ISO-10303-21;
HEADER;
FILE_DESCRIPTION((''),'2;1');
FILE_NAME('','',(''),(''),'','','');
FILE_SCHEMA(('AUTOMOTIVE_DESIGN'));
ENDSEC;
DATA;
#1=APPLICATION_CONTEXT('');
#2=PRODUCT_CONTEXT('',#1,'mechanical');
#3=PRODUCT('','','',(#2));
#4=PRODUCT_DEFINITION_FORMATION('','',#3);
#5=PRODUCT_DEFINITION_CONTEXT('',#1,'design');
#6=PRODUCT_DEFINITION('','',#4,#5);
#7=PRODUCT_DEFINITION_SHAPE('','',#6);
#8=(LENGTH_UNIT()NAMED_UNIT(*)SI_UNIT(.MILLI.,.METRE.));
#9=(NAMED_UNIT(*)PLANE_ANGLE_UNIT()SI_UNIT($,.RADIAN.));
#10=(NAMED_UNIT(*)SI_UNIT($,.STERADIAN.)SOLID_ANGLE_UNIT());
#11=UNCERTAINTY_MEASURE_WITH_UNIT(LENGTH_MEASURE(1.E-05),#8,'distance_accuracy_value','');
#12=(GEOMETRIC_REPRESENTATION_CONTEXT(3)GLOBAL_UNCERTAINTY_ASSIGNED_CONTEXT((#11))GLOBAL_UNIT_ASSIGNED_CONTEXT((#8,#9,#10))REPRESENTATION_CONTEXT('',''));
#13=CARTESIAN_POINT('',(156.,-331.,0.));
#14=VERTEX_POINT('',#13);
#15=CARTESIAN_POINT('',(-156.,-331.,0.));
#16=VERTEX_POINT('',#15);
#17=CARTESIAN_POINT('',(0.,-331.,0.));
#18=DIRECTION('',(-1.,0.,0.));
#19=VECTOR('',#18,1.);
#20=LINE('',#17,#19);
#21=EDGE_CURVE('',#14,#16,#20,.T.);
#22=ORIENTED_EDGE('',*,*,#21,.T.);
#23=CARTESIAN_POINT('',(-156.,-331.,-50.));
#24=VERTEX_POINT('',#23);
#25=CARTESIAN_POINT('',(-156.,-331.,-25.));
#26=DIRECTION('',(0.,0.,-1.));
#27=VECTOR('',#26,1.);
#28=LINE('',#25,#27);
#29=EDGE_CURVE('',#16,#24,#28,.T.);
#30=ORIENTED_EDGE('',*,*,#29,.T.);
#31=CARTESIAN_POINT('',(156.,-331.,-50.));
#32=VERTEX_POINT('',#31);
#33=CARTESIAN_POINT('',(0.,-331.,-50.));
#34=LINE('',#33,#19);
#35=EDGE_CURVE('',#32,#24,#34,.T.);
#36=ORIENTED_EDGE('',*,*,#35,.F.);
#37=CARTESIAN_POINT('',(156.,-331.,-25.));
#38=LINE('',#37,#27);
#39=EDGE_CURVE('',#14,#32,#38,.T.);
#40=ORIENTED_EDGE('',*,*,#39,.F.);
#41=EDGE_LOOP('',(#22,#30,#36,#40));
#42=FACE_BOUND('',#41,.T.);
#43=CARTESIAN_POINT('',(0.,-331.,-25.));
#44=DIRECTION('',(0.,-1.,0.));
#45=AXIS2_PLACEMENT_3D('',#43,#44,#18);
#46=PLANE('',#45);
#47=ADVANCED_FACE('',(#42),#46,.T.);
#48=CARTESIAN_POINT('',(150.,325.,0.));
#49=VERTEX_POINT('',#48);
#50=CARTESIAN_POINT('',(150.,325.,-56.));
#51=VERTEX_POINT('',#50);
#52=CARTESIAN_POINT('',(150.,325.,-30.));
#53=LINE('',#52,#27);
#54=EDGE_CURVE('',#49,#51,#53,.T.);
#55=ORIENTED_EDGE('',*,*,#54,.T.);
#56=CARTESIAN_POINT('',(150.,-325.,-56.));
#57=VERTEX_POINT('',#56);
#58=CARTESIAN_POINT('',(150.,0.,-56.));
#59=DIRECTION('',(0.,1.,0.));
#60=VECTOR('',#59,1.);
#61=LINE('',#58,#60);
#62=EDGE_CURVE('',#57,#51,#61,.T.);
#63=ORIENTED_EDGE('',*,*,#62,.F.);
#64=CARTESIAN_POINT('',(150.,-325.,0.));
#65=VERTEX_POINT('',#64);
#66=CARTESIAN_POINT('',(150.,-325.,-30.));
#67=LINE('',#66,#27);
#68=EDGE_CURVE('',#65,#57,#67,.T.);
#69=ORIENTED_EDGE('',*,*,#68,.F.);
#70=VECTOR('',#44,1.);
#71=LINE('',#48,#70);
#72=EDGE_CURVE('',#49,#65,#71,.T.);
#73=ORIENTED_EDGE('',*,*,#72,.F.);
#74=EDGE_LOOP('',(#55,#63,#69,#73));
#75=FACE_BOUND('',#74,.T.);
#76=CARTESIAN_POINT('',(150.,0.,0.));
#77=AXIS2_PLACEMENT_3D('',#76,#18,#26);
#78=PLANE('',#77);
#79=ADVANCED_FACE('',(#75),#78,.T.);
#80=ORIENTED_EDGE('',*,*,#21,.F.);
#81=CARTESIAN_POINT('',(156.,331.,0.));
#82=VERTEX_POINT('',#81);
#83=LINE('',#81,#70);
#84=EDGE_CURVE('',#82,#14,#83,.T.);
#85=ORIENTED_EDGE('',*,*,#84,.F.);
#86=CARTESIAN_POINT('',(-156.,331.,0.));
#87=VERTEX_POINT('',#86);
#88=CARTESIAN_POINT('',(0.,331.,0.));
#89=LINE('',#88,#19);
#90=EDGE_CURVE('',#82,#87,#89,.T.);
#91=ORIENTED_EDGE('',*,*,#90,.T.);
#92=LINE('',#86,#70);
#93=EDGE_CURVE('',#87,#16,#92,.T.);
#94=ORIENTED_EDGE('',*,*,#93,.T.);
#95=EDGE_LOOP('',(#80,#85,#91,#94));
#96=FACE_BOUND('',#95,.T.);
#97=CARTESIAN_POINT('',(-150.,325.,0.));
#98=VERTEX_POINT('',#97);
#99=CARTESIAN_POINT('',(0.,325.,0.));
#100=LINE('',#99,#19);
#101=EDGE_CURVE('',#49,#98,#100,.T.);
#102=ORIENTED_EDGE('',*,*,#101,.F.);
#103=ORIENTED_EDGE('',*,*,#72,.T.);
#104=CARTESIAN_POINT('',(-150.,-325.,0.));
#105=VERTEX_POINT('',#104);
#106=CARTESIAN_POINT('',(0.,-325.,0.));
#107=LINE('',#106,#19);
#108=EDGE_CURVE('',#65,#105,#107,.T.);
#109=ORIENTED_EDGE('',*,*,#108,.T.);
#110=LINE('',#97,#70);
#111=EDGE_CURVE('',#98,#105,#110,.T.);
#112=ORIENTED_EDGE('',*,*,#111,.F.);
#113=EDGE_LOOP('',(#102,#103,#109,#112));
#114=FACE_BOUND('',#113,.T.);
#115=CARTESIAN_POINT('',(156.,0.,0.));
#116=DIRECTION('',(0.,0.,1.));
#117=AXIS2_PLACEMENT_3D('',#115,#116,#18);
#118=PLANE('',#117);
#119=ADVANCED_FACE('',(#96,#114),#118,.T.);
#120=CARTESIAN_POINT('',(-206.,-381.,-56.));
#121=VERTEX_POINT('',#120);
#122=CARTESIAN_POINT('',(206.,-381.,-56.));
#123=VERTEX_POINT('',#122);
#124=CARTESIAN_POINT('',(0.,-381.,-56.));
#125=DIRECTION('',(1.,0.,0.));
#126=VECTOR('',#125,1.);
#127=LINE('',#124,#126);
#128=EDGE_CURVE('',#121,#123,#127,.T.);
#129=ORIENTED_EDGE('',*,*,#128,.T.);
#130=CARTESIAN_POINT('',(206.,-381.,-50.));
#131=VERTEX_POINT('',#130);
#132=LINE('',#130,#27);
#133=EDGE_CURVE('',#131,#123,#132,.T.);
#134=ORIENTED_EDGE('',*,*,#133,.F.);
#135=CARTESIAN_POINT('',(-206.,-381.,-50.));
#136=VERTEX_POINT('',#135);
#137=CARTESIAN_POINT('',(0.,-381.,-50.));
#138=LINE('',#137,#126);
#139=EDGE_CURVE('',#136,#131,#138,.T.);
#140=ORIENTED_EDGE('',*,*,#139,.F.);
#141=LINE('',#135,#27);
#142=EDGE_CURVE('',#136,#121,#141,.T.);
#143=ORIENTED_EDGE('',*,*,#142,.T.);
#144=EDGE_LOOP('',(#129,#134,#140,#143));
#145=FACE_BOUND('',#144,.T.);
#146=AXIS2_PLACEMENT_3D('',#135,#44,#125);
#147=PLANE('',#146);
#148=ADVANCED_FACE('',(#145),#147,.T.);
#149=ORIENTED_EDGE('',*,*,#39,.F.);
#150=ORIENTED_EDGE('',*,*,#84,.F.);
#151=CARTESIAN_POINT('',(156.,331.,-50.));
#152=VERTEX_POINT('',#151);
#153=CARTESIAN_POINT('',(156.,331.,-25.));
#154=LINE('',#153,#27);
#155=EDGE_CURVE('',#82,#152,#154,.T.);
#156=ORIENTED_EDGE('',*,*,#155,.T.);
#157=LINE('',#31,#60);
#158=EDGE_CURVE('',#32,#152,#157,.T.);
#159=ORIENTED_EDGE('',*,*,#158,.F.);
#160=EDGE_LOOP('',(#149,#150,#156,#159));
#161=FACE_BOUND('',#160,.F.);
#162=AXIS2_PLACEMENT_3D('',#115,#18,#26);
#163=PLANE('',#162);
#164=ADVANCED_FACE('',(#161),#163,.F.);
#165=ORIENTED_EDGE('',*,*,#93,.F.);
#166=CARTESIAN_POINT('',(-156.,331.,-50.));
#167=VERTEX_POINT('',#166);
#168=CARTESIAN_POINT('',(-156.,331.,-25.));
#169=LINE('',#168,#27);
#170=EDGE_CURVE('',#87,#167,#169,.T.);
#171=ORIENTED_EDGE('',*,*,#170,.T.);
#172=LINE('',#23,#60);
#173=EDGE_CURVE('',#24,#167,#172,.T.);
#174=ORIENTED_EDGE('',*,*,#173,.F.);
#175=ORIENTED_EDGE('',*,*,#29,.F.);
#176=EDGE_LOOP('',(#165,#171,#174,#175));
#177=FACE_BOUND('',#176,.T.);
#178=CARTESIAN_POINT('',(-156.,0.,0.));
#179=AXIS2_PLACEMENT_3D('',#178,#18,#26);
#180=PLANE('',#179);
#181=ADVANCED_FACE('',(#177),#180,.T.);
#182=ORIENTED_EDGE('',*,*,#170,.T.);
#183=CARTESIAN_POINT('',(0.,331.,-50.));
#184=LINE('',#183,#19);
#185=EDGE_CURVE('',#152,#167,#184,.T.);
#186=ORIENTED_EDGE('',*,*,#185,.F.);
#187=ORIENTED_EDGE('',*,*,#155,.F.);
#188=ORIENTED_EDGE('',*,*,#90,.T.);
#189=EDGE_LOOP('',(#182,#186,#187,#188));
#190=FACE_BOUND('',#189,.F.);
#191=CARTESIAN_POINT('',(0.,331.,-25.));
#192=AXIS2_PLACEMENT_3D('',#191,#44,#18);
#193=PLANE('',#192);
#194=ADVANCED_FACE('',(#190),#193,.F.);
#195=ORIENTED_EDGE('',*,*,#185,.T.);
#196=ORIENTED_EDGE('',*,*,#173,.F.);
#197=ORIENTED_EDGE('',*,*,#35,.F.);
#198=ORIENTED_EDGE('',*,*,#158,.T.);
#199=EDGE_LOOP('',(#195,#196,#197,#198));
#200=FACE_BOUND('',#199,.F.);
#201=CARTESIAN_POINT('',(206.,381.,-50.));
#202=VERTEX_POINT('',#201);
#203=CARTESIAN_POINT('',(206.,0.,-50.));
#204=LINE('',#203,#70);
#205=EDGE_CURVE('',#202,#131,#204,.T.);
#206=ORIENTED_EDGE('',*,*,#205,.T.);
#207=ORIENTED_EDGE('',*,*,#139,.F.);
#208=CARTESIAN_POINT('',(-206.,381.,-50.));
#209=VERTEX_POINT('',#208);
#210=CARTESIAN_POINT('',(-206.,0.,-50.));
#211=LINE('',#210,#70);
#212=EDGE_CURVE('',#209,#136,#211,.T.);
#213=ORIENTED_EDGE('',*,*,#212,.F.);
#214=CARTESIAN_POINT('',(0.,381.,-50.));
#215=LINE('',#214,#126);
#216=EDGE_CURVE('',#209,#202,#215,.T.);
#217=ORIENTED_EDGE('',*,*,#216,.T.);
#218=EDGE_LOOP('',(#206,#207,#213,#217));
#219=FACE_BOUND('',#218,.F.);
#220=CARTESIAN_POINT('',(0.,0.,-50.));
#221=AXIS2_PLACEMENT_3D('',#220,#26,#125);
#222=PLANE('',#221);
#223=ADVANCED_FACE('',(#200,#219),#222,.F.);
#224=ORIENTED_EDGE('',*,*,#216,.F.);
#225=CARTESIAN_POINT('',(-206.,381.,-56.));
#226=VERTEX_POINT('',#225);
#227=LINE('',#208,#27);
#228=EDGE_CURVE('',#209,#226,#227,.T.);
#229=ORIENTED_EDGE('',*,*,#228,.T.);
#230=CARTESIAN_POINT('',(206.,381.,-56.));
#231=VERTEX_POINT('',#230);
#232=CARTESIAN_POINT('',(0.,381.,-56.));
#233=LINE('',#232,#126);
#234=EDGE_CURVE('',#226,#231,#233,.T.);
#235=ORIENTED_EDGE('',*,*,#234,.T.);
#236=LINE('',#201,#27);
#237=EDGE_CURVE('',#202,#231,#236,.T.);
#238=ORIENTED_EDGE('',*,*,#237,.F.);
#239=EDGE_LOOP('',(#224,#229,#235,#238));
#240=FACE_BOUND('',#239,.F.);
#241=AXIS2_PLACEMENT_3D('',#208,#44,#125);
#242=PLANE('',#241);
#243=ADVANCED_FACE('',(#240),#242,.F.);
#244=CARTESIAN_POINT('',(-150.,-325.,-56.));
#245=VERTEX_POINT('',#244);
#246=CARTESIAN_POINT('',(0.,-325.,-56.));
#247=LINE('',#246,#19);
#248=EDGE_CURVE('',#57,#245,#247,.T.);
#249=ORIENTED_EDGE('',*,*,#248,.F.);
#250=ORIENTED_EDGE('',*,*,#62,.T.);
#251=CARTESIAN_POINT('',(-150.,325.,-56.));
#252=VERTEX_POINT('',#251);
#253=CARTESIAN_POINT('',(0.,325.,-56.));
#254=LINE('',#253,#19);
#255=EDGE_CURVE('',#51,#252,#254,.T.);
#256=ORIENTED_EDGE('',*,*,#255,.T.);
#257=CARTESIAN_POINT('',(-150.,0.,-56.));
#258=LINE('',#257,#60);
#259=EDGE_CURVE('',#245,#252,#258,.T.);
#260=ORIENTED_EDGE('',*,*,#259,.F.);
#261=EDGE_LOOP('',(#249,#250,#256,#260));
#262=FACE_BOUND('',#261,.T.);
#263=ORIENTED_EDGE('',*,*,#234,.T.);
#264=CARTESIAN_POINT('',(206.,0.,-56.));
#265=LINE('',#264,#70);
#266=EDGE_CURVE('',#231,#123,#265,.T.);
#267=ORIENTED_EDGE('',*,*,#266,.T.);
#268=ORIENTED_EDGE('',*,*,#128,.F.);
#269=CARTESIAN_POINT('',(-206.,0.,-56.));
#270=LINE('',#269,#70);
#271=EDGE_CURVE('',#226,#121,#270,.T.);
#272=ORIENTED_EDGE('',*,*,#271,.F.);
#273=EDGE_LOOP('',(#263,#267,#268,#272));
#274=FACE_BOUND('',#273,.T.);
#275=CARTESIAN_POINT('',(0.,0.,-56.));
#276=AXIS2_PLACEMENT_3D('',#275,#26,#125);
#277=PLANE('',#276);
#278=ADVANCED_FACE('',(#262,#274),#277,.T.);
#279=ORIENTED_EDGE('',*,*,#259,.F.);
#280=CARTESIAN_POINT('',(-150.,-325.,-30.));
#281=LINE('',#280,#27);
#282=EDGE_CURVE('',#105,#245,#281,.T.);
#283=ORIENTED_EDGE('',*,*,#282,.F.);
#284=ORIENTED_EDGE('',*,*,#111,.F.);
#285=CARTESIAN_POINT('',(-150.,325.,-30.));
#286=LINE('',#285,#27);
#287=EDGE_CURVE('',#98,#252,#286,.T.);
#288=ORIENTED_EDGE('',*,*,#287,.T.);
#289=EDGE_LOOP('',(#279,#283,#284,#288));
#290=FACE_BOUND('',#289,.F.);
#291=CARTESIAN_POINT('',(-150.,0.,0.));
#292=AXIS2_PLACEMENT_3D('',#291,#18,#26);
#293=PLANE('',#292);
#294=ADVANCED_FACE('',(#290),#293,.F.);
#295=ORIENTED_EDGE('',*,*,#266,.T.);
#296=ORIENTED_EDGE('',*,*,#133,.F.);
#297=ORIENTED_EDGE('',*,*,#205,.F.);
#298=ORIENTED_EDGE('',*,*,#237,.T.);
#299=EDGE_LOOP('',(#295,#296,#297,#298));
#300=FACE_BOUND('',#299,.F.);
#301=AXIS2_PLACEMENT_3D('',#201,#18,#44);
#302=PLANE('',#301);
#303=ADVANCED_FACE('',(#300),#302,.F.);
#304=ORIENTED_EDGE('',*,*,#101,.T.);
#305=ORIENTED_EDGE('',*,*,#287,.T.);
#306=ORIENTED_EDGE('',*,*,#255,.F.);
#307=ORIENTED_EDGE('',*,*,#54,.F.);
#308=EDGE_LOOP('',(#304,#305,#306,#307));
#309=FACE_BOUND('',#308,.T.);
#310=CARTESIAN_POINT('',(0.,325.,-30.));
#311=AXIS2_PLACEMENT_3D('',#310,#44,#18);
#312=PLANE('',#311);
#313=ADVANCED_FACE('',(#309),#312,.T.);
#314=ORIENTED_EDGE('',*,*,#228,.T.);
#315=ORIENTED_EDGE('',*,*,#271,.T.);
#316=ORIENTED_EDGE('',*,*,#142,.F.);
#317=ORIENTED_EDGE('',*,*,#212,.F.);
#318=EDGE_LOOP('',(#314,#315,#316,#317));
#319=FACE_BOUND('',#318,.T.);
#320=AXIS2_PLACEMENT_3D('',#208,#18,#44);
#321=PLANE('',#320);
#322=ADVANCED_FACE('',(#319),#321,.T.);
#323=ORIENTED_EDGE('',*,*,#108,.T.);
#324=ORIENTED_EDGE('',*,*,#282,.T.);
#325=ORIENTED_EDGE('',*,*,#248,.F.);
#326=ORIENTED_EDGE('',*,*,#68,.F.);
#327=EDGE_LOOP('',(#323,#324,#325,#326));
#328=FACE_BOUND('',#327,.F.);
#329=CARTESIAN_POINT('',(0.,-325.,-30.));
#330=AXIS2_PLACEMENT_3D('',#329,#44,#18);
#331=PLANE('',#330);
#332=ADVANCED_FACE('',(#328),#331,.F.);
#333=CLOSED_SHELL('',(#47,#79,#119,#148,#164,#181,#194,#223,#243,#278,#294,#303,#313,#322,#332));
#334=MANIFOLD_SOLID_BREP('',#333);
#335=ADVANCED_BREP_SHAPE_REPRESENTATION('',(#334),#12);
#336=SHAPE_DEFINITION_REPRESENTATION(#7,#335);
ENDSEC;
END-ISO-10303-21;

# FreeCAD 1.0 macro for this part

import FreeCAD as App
import Part
import Sketcher

V = App.Vector
Q = App.Units.Quantity


def add_polygon(sketch, points):
    """Adds a closed chain of lines whose ends are joined by coincident constraints."""
    first, n = sketch.GeometryCount, len(points)
    for a, b in zip(points, points[1:] + points[:1]):
        sketch.addGeometry(Part.LineSegment(App.Vector(*a, 0), App.Vector(*b, 0)), False)
    for i in range(n):
        sketch.addConstraint(Sketcher.Constraint("Coincident", first + i, 2, first + (i + 1) % n, 1))

doc = App.newDocument("Part")
body = doc.addObject("PartDesign::Body", "Body")

# Sketch on XZ plane
sketch1 = body.newObject("Sketcher::SketchObject", "Sketch")
sketch1.AttachmentSupport = (doc.getObject("XZ_Plane"), [""])
sketch1.MapMode = "FlatFace"
add_polygon(sketch1, [(-150, 60), (-150, 0), (150, 0), (150, 60)])  # lines 0-3
sketch1.addConstraint(Sketcher.Constraint("Vertical", 0))
sketch1.addConstraint(Sketcher.Constraint("Horizontal", 1))
sketch1.addConstraint(Sketcher.Constraint("Vertical", 2))
sketch1.addConstraint(Sketcher.Constraint("Horizontal", 3))
sketch1.addConstraint(Sketcher.Constraint("Symmetric", 0, 2, 1, 2, -1, 1))
sketch1.addConstraint(Sketcher.Constraint("DistanceX", 1, 1, 1, 2, Q("300 mm")))
sketch1.addConstraint(Sketcher.Constraint("DistanceY", 0, 2, 0, 1, Q("60 mm")))
pad1 = body.newObject("PartDesign::Pad", "Pad")
pad1.Profile = sketch1
pad1.Length = 650
pad1.Midplane = True
body2 = doc.addObject("PartDesign::Body", "Body001")

# Sketch on XZ plane
sketch2 = body2.newObject("Sketcher::SketchObject", "Sketch001")
sketch2.AttachmentSupport = (doc.getObject("XZ_Plane001"), [""])
sketch2.MapMode = "FlatFace"
add_polygon(sketch2, [(-156, 50), (-156, 0), (156, 0), (156, 50)])  # lines 0-3
sketch2.addConstraint(Sketcher.Constraint("Vertical", 0))
sketch2.addConstraint(Sketcher.Constraint("Horizontal", 1))
sketch2.addConstraint(Sketcher.Constraint("Vertical", 2))
sketch2.addConstraint(Sketcher.Constraint("Horizontal", 3))
sketch2.addConstraint(Sketcher.Constraint("Symmetric", 0, 2, 1, 2, -1, 1))
sketch2.addConstraint(Sketcher.Constraint("DistanceX", 1, 1, 1, 2, Q("312 mm")))
sketch2.addConstraint(Sketcher.Constraint("DistanceY", 0, 2, 0, 1, Q("50 mm")))
pad2 = body2.newObject("PartDesign::Pad", "Pad001")
pad2.Profile = sketch2
pad2.Length = 662
pad2.Midplane = True

# Sketch on XY plane
sketch3 = body2.newObject("Sketcher::SketchObject", "Sketch002")
sketch3.AttachmentSupport = (doc.getObject("XY_Plane001"), [""])
sketch3.MapMode = "FlatFace"
sketch3.AttachmentOffset = App.Placement(V(0, 0, 50), App.Rotation())
add_polygon(sketch3, [(206, -381), (206, 381), (-206, 381), (-206, -381)])  # lines 0-3
sketch3.addConstraint(Sketcher.Constraint("Vertical", 0))
sketch3.addConstraint(Sketcher.Constraint("Horizontal", 1))
sketch3.addConstraint(Sketcher.Constraint("Vertical", 2))
sketch3.addConstraint(Sketcher.Constraint("Horizontal", 3))
sketch3.addConstraint(Sketcher.Constraint("Symmetric", 0, 2, 2, 2, -1, 1))
sketch3.addConstraint(Sketcher.Constraint("DistanceX", 1, 2, 1, 1, Q("412 mm")))
sketch3.addConstraint(Sketcher.Constraint("DistanceY", 0, 1, 0, 2, Q("762 mm")))
pad3 = body2.newObject("PartDesign::Pad", "Pad002")
pad3.Profile = sketch3
pad3.Length = 6
doc.recompute()

boolean = body2.newObject("PartDesign::Boolean", "Boolean")
boolean.Type = "Cut"
boolean.addObjects([body])
body3 = doc.addObject("PartDesign::Body", "Body002")
doc.recompute()

body2.Placement = App.Placement(V(0, 0, 0), App.Rotation(V(0, 1, 0), 180))
boolean2 = body3.newObject("PartDesign::Boolean", "Boolean001")
boolean2.Type = "Fuse"
boolean2.addObjects([body2])

doc.recompute()
